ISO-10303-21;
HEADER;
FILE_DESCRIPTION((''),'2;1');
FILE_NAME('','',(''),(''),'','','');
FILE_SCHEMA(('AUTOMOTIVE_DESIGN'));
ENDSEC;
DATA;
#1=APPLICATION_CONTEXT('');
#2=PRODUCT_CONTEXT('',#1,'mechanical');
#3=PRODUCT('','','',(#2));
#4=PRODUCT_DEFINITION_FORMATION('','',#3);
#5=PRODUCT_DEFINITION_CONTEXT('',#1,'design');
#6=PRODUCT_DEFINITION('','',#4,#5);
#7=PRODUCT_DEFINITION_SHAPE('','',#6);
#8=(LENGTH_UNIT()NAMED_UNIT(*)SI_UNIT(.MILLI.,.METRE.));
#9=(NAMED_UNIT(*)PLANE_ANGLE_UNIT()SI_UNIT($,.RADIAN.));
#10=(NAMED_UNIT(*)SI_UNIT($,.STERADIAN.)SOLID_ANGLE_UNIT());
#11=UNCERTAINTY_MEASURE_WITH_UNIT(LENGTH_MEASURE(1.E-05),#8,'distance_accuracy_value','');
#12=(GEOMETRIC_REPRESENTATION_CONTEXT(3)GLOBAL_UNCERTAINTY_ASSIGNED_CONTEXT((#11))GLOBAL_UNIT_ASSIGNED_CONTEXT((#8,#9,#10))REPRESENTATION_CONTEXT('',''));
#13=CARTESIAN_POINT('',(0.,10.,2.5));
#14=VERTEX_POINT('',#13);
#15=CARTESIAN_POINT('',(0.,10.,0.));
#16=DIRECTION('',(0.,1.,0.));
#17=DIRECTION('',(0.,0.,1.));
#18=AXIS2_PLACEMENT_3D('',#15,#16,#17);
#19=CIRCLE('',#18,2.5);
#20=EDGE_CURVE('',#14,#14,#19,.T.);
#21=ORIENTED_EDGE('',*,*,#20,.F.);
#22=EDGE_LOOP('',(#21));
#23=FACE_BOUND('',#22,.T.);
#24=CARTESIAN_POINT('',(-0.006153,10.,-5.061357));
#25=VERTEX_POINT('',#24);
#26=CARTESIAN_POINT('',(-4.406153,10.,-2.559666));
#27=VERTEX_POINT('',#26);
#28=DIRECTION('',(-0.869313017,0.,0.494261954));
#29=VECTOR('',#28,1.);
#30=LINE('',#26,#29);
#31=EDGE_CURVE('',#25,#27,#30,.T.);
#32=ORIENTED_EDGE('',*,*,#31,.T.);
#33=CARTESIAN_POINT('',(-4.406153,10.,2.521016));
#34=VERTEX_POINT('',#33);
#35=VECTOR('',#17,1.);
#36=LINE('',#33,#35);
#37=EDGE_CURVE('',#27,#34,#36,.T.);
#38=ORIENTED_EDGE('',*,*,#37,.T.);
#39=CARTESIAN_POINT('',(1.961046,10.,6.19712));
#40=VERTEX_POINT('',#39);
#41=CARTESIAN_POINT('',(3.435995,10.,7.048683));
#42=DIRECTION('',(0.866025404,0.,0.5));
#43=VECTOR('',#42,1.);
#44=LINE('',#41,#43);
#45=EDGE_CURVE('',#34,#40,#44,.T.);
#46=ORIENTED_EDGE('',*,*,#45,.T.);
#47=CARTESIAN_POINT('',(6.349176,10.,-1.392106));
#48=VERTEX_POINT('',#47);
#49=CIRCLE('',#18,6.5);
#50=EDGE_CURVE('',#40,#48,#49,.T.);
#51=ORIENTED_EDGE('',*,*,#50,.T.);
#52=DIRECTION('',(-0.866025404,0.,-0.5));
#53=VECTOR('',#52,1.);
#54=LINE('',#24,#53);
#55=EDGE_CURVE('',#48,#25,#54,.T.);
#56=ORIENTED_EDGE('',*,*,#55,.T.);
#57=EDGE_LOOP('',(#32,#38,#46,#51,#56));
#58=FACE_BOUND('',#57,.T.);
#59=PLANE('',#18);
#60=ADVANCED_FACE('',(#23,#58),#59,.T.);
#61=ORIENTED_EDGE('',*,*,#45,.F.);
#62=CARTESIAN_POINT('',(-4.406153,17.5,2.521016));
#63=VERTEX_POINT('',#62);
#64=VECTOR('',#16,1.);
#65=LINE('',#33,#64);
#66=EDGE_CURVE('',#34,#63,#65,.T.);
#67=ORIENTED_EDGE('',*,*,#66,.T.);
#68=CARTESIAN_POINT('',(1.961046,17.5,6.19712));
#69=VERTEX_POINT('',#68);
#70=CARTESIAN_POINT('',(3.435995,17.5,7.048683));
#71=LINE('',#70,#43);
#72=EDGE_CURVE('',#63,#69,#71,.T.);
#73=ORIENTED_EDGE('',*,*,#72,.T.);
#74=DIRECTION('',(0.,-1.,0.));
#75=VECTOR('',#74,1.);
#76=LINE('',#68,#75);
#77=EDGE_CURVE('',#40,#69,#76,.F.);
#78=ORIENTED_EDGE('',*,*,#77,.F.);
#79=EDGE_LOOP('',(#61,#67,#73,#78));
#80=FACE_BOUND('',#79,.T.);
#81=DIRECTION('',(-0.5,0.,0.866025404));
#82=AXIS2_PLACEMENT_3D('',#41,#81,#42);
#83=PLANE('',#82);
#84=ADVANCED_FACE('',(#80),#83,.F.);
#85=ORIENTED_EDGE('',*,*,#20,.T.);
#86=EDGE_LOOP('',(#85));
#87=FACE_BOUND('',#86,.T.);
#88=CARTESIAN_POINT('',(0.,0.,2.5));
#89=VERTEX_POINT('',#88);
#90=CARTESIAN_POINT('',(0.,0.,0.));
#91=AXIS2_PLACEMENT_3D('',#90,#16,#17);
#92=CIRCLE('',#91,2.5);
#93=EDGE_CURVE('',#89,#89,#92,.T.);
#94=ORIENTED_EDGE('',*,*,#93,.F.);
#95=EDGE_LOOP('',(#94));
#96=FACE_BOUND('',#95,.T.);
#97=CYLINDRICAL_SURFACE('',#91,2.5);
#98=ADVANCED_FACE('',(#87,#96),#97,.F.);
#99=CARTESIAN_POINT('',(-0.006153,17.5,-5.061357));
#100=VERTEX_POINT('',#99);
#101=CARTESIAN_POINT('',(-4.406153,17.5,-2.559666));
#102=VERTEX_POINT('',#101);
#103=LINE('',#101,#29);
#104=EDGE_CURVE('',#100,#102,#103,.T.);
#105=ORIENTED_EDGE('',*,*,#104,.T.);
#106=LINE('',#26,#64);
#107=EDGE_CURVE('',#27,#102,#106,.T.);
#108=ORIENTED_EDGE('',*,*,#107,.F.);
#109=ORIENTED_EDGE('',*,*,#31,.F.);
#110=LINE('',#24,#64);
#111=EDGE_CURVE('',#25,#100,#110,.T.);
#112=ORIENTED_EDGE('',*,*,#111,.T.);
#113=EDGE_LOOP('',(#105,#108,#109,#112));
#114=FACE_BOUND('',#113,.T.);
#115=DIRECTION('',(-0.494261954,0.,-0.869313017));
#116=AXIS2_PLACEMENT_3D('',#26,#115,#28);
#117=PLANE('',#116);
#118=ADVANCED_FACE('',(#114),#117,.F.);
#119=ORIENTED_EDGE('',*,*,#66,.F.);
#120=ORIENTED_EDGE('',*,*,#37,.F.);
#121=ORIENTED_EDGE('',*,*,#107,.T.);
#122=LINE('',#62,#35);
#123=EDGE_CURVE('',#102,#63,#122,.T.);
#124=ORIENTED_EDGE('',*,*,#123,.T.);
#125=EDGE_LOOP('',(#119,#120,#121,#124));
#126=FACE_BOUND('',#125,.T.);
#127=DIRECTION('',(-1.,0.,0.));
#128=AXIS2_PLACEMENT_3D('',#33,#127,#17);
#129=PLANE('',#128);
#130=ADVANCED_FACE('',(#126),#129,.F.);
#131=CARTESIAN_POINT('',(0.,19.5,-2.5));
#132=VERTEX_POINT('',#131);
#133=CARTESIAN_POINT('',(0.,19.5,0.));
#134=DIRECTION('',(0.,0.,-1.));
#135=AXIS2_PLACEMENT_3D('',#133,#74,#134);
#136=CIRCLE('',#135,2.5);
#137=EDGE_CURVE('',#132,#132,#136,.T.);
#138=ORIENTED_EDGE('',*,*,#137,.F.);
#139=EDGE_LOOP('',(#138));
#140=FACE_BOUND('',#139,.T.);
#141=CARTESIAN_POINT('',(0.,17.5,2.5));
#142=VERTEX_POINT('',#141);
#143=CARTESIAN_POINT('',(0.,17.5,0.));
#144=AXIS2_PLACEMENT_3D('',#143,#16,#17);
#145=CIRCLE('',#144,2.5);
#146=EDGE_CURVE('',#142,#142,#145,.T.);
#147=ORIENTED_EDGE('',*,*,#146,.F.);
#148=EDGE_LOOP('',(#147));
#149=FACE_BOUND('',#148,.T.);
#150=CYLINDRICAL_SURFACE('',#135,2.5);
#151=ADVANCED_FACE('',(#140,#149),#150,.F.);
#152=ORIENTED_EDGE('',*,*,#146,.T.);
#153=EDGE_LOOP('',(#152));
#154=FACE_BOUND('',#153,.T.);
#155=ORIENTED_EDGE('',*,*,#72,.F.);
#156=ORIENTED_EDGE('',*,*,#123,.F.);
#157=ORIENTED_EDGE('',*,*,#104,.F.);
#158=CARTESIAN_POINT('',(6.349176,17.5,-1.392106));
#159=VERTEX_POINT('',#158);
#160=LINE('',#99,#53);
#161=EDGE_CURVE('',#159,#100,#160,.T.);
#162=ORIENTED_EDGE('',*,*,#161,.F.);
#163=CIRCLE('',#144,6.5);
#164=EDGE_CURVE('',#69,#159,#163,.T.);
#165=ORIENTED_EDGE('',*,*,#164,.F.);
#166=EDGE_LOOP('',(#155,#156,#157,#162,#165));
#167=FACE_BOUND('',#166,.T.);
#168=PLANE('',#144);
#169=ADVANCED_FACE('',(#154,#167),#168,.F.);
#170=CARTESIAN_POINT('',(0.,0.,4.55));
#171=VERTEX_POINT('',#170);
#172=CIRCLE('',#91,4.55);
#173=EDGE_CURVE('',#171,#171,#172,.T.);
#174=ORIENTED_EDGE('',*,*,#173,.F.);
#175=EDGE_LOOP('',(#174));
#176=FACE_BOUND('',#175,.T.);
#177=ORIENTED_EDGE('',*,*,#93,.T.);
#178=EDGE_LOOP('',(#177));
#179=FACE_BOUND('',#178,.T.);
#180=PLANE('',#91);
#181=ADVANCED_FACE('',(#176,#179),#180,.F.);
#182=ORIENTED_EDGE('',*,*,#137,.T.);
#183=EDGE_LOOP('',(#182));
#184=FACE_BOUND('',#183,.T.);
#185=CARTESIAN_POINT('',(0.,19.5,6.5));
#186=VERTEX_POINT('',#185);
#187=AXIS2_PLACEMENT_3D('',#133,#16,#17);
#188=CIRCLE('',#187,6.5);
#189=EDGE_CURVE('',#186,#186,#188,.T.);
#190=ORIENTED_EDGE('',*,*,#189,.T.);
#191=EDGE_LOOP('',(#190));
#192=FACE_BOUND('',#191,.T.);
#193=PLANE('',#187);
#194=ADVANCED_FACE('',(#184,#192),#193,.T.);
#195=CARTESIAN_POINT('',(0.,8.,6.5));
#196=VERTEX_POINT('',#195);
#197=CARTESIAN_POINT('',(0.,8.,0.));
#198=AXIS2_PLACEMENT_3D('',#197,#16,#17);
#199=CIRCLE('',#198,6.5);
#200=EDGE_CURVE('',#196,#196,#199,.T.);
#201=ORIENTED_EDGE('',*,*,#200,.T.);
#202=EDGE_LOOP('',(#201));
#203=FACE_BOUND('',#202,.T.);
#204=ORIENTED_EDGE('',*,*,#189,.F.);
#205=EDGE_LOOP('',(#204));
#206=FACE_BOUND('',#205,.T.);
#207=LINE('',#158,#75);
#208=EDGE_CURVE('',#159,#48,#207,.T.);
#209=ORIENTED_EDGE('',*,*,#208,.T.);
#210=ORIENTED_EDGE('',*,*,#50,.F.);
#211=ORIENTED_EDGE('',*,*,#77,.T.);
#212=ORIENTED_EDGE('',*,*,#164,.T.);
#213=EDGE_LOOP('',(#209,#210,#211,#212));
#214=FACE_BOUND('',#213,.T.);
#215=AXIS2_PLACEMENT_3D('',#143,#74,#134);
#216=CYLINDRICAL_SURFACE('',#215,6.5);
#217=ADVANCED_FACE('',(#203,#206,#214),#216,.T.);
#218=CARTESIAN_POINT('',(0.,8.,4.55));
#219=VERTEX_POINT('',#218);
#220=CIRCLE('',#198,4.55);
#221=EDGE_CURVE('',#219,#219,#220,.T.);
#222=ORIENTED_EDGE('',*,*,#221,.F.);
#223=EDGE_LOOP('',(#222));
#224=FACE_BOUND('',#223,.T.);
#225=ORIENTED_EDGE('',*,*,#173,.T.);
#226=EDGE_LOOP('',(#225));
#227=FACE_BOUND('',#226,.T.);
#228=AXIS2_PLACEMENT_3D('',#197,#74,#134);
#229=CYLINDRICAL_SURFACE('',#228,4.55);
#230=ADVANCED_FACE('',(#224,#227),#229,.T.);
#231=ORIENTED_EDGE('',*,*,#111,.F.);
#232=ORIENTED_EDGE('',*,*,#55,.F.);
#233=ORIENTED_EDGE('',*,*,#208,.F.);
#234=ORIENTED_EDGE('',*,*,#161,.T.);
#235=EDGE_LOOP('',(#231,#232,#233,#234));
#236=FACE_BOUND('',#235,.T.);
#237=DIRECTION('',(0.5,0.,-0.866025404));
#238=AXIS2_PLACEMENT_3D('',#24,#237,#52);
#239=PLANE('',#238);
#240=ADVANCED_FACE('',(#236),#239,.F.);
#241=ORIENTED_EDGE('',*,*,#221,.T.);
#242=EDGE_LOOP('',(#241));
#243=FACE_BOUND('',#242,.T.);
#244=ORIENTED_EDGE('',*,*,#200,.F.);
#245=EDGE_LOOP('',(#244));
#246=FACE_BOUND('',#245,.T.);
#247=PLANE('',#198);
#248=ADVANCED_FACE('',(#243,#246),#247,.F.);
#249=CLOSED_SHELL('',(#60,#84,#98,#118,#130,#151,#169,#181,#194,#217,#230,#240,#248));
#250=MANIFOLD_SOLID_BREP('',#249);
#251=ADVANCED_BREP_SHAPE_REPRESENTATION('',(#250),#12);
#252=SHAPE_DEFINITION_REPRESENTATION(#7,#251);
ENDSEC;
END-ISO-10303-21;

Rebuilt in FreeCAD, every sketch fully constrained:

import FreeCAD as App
import Part
import Sketcher
Q = App.Units.Quantity


def add_polygon(sketch, points):
    """Adds a closed chain of lines whose ends are joined by coincident constraints."""
    first, n = sketch.GeometryCount, len(points)
    for a, b in zip(points, points[1:] + points[:1]):
        sketch.addGeometry(Part.LineSegment(App.Vector(*a, 0), App.Vector(*b, 0)), False)
    for i in range(n):
        sketch.addConstraint(Sketcher.Constraint("Coincident", first + i, 2, first + (i + 1) % n, 1))

doc = App.newDocument("Part")
body = doc.addObject("PartDesign::Body", "Body")

# Sketch on XZ plane
sketch1 = doc.addObject("Sketcher::SketchObject", "Sketch")
body.addObject(sketch1)
sketch1.AttachmentSupport = (doc.XZ_Plane, [""])
sketch1.MapMode = "FlatFace"
sketch1.addGeometry(Part.Circle(App.Vector(0, 0, 0), App.Vector(0, 0, 1), 4.5), False)
sketch1.addConstraint([
    Sketcher.Constraint("Coincident", 0, 3, -1, 1),
    Sketcher.Constraint("Diameter", 0, 9.1),
])
pad1 = doc.addObject("PartDesign::Pad", "Pad")
body.addObject(pad1)
pad1.Profile = sketch1
pad1.Length = 8
pad1.Reversed = True

# Sketch on XZ plane
sketch2 = doc.addObject("Sketcher::SketchObject", "Sketch001")
body.addObject(sketch2)
sketch2.AttachmentSupport = (doc.XZ_Plane, [""])
sketch2.MapMode = "FlatFace"
sketch2.AttachmentOffset = App.Placement(App.Vector(0, 0, -8), App.Rotation())
sketch2.addGeometry(Part.Circle(App.Vector(0, 0, 0), App.Vector(0, 0, 1), 2.5), False)
sketch2.addConstraint([
    Sketcher.Constraint("Coincident", 0, 3, -1, 1),
    Sketcher.Constraint("Diameter", 0, 5.0),
])
pocket1 = doc.addObject("PartDesign::Pocket", "Pocket")
body.addObject(pocket1)
pocket1.Profile = sketch2
pocket1.Length = 8
pocket1.Reversed = True

# Sketch on XZ plane
sketch3 = doc.addObject("Sketcher::SketchObject", "Sketch002")
body.addObject(sketch3)
sketch3.AttachmentSupport = (doc.XZ_Plane, [""])
sketch3.MapMode = "FlatFace"
sketch3.AttachmentOffset = App.Placement(App.Vector(0, 0, -8), App.Rotation())
sketch3.addGeometry(Part.Circle(App.Vector(0, 0, 0), App.Vector(0, 0, 1), 6), False)
sketch3.addConstraint([
    Sketcher.Constraint("Coincident", 0, 3, -1, 1),
    Sketcher.Constraint("Diameter", 0, 13.0),
])
pad2 = doc.addObject("PartDesign::Pad", "Pad001")
body.addObject(pad2)
pad2.Profile = sketch3
pad2.Length = 9.5
pad2.Reversed = True

# Sketch on XZ plane
sketch4 = doc.addObject("Sketcher::SketchObject", "Sketch003")
body.addObject(sketch4)
sketch4.AttachmentSupport = (doc.XZ_Plane, [""])
sketch4.MapMode = "FlatFace"
sketch4.AttachmentOffset = App.Placement(App.Vector(0, 0, -17.5), App.Rotation())
add_polygon(sketch4, [(-4, -3), (-4, 3), (3, 7), (8, -1), (0, -5)])  # lines 0-4
sketch4.addConstraint([
    Sketcher.Constraint("Vertical", 0),
    Sketcher.Constraint("Perpendicular", 1, 2),
    Sketcher.Constraint("Perpendicular", 2, 3),
    Sketcher.Constraint("Angle", 1, Q("30 deg")),
    Sketcher.Constraint("DistanceX", 0, 2, 3, 2, 4.4),
    Sketcher.Constraint("Distance", 2, 8.766528),
    Sketcher.Constraint("DistanceY", 0, 1, 0, 2, 5.080682),
    Sketcher.Constraint("DistanceX", -1, 1, 2, 2, 7.819259),
    Sketcher.Constraint("DistanceX", 0, 2, 1, 2, 7.842148),
    Sketcher.Constraint("DistanceY", -1, 1, 0, 2, 2.521016),
])
pocket2 = doc.addObject("PartDesign::Pocket", "Pocket001")
body.addObject(pocket2)
pocket2.Profile = sketch4
pocket2.Length = 7.5
pocket2.Reversed = True

# Sketch on XZ plane
sketch5 = doc.addObject("Sketcher::SketchObject", "Sketch004")
body.addObject(sketch5)
sketch5.AttachmentSupport = (doc.XZ_Plane, [""])
sketch5.MapMode = "FlatFace"
sketch5.AttachmentOffset = App.Placement(App.Vector(0, 0, -17.5), App.Rotation())
sketch5.addGeometry(Part.Circle(App.Vector(0, 0, 0), App.Vector(0, 0, 1), 6), False)
sketch5.addConstraint([
    Sketcher.Constraint("Coincident", 0, 3, -1, 1),
    Sketcher.Constraint("Diameter", 0, 13.0),
])
pad3 = doc.addObject("PartDesign::Pad", "Pad002")
body.addObject(pad3)
pad3.Profile = sketch5
pad3.Length = 2
pad3.Reversed = True

# Sketch on XZ plane
sketch6 = doc.addObject("Sketcher::SketchObject", "Sketch005")
body.addObject(sketch6)
sketch6.AttachmentSupport = (doc.XZ_Plane, [""])
sketch6.MapMode = "FlatFace"
sketch6.addGeometry(Part.Circle(App.Vector(0, 0, 0), App.Vector(0, 0, 1), 2.5), False)
sketch6.addConstraint([
    Sketcher.Constraint("Coincident", 0, 3, -1, 1),
    Sketcher.Constraint("Diameter", 0, 5.0),
])
pocket3 = doc.addObject("PartDesign::Pocket", "Pocket002")
body.addObject(pocket3)
pocket3.Profile = sketch6
pocket3.Type = "ThroughAll"

doc.recompute()
